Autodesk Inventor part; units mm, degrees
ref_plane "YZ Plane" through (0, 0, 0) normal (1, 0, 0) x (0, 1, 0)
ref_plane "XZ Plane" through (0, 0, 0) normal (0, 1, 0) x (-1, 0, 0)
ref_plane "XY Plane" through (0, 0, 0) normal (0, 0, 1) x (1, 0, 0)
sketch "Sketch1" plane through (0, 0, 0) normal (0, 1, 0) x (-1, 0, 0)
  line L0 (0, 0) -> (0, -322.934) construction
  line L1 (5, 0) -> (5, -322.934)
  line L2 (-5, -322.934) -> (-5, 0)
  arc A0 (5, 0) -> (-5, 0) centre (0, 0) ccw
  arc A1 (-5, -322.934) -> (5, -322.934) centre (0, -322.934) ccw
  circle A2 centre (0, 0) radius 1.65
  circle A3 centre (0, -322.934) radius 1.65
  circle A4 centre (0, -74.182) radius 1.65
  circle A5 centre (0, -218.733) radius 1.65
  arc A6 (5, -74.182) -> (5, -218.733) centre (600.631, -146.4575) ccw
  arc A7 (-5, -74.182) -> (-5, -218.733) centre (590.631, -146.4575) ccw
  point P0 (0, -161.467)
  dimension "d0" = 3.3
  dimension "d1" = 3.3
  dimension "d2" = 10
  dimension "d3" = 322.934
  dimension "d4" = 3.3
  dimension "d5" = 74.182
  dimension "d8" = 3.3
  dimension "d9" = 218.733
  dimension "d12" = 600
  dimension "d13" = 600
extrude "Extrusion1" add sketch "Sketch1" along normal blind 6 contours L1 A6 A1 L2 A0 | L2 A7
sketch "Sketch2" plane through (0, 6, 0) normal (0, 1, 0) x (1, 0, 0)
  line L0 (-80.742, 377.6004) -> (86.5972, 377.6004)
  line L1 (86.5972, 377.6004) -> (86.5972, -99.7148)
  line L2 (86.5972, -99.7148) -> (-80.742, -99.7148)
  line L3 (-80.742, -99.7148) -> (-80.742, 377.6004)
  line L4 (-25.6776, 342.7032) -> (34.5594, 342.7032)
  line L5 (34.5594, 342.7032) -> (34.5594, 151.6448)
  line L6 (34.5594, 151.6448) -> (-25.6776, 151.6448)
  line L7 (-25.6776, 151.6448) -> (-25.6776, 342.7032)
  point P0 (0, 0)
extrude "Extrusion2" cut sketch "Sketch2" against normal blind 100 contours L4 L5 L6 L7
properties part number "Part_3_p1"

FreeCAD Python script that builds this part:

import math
import FreeCAD as App
import Part
import Sketcher
Q = App.Units.Quantity

doc = App.newDocument("Part")
body = doc.addObject("PartDesign::Body", "Body")

# Sketch on XZ plane
sketch1 = body.newObject("Sketcher::SketchObject", "Sketch")
sketch1.AttachmentSupport = (doc.getObject("XZ_Plane"), [""])
sketch1.MapMode = "FlatFace"
sketch1.addGeometry([
    Part.LineSegment(App.Vector(-5, -74.2, 0), App.Vector(-5, 0, 0)),  # 0
    Part.ArcOfCircle(Part.Circle(App.Vector(0, 0, 0), App.Vector(0, 0, 1), 5), math.radians(0), math.radians(180)),  # 1
    Part.LineSegment(App.Vector(5, 0, 0), App.Vector(5, -74.2, 0)),  # 2
    Part.ArcOfCircle(Part.Circle(App.Vector(-590.6, -146.5, 0), App.Vector(0, 0, 1), 600), math.radians(-6.92), math.radians(6.92)),  # 3
    Part.LineSegment(App.Vector(5, -218.7, 0), App.Vector(5, -322.9, 0)),  # 4
    Part.ArcOfCircle(Part.Circle(App.Vector(0, -322.9, 0), App.Vector(0, 0, 1), 5), math.radians(180), math.radians(360)),  # 5
    Part.LineSegment(App.Vector(-5, -322.9, 0), App.Vector(-5, -218.7, 0)),  # 6
    Part.ArcOfCircle(Part.Circle(App.Vector(-600.6, -146.5, 0), App.Vector(0, 0, 1), 600), math.radians(-6.92), math.radians(6.92)),  # 7
    Part.Circle(App.Vector(0, -322.9, 0), App.Vector(0, 0, 1), 1.6),  # 8
    Part.Circle(App.Vector(0, -218.7, 0), App.Vector(0, 0, 1), 1.6),  # 9
    Part.Circle(App.Vector(0, -74.2, 0), App.Vector(0, 0, 1), 1.6),  # 10
    Part.Circle(App.Vector(0, 0, 0), App.Vector(0, 0, 1), 1.6),  # 11
], False)
sketch1.addConstraint([
    Sketcher.Constraint("Tangent", 0, 2, 1, 2),
    Sketcher.Constraint("Tangent", 1, 1, 2, 1),
    Sketcher.Constraint("Coincident", 2, 2, 3, 2),
    Sketcher.Constraint("Coincident", 3, 1, 4, 1),
    Sketcher.Constraint("Tangent", 4, 2, 5, 2),
    Sketcher.Constraint("Tangent", 5, 1, 6, 1),
    Sketcher.Constraint("Coincident", 6, 2, 7, 1),
    Sketcher.Constraint("Coincident", 7, 2, 0, 1),
    Sketcher.Constraint("Vertical", 0),
    Sketcher.Constraint("Vertical", 2),
    Sketcher.Constraint("Vertical", 4),
    Sketcher.Constraint("Vertical", 6),
    Sketcher.Constraint("Coincident", 1, 3, -1, 1),
    Sketcher.Constraint("Coincident", 11, 3, -1, 1),
    Sketcher.Constraint("Coincident", 8, 3, 5, 3),
    Sketcher.Constraint("Equal", 1, 5),
    Sketcher.Constraint("Equal", 3, 7),
    Sketcher.Constraint("Equal", 8, 9),
    Sketcher.Constraint("Equal", 9, 10),
    Sketcher.Constraint("Equal", 10, 11),
    Sketcher.Constraint("Symmetric", 3, 1, 6, 2, -2),
    Sketcher.Constraint("PointOnObject", 9, 3, -2),
    Sketcher.Constraint("PointOnObject", 10, 3, -2),
    Sketcher.Constraint("Horizontal", 3, 3, 7, 3),
    Sketcher.Constraint("Horizontal", 10, 3, 2, 2),
    Sketcher.Constraint("Radius", 1, Q("5 mm")),
    Sketcher.Constraint("Radius", 3, Q("600 mm")),
    Sketcher.Constraint("Diameter", 8, Q("3.3 mm")),
    Sketcher.Constraint("DistanceY", 0, 1, 0, 2, Q("74.182 mm")),
    Sketcher.Constraint("DistanceY", 5, 3, -1, 1, Q("322.934 mm")),
    Sketcher.Constraint("DistanceY", 9, 3, -1, 1, Q("218.733 mm")),
    Sketcher.Constraint("DistanceY", 6, 2, -1, 1, Q("218.733 mm")),
])
pad1 = body.newObject("PartDesign::Pad", "Pad")
pad1.Profile = sketch1
pad1.Length = 6
pad1.Reversed = True

# Sketch on XZ plane
sketch2 = body.newObject("Sketcher::SketchObject", "Sketch001")
sketch2.AttachmentSupport = (doc.getObject("XZ_Plane"), [""])
sketch2.MapMode = "FlatFace"
sketch2.AttachmentOffset = App.Placement(App.Vector(0, 0, -6), App.Rotation())
sketch2.addGeometry([
    Part.LineSegment(App.Vector(35, -343, 0), App.Vector(-26, -343, 0)),
    Part.LineSegment(App.Vector(-26, -343, 0), App.Vector(-26, -152, 0)),
    Part.LineSegment(App.Vector(-26, -152, 0), App.Vector(35, -152, 0)),
    Part.LineSegment(App.Vector(35, -152, 0), App.Vector(35, -343, 0)),
], False)
sketch2.addConstraint([
    Sketcher.Constraint("Coincident", 0, 2, 1, 1),
    Sketcher.Constraint("Coincident", 1, 2, 2, 1),
    Sketcher.Constraint("Coincident", 2, 2, 3, 1),
    Sketcher.Constraint("Coincident", 3, 2, 0, 1),
    Sketcher.Constraint("Horizontal", 0),
    Sketcher.Constraint("Vertical", 1),
    Sketcher.Constraint("Horizontal", 2),
    Sketcher.Constraint("Vertical", 3),
    Sketcher.Constraint("DistanceX", 0, 2, 0, 1, Q("60.237 mm")),
    Sketcher.Constraint("DistanceY", 1, 1, 1, 2, Q("191.0584 mm")),
    Sketcher.Constraint("DistanceX", 0, 2, -1, 1, Q("25.6776 mm")),
    Sketcher.Constraint("DistanceY", 0, 2, -1, 1, Q("342.7032 mm")),
])
pocket1 = body.newObject("PartDesign::Pocket", "Pocket")
pocket1.Profile = sketch2
pocket1.Length = 100
pocket1.Reversed = True

doc.recompute()
